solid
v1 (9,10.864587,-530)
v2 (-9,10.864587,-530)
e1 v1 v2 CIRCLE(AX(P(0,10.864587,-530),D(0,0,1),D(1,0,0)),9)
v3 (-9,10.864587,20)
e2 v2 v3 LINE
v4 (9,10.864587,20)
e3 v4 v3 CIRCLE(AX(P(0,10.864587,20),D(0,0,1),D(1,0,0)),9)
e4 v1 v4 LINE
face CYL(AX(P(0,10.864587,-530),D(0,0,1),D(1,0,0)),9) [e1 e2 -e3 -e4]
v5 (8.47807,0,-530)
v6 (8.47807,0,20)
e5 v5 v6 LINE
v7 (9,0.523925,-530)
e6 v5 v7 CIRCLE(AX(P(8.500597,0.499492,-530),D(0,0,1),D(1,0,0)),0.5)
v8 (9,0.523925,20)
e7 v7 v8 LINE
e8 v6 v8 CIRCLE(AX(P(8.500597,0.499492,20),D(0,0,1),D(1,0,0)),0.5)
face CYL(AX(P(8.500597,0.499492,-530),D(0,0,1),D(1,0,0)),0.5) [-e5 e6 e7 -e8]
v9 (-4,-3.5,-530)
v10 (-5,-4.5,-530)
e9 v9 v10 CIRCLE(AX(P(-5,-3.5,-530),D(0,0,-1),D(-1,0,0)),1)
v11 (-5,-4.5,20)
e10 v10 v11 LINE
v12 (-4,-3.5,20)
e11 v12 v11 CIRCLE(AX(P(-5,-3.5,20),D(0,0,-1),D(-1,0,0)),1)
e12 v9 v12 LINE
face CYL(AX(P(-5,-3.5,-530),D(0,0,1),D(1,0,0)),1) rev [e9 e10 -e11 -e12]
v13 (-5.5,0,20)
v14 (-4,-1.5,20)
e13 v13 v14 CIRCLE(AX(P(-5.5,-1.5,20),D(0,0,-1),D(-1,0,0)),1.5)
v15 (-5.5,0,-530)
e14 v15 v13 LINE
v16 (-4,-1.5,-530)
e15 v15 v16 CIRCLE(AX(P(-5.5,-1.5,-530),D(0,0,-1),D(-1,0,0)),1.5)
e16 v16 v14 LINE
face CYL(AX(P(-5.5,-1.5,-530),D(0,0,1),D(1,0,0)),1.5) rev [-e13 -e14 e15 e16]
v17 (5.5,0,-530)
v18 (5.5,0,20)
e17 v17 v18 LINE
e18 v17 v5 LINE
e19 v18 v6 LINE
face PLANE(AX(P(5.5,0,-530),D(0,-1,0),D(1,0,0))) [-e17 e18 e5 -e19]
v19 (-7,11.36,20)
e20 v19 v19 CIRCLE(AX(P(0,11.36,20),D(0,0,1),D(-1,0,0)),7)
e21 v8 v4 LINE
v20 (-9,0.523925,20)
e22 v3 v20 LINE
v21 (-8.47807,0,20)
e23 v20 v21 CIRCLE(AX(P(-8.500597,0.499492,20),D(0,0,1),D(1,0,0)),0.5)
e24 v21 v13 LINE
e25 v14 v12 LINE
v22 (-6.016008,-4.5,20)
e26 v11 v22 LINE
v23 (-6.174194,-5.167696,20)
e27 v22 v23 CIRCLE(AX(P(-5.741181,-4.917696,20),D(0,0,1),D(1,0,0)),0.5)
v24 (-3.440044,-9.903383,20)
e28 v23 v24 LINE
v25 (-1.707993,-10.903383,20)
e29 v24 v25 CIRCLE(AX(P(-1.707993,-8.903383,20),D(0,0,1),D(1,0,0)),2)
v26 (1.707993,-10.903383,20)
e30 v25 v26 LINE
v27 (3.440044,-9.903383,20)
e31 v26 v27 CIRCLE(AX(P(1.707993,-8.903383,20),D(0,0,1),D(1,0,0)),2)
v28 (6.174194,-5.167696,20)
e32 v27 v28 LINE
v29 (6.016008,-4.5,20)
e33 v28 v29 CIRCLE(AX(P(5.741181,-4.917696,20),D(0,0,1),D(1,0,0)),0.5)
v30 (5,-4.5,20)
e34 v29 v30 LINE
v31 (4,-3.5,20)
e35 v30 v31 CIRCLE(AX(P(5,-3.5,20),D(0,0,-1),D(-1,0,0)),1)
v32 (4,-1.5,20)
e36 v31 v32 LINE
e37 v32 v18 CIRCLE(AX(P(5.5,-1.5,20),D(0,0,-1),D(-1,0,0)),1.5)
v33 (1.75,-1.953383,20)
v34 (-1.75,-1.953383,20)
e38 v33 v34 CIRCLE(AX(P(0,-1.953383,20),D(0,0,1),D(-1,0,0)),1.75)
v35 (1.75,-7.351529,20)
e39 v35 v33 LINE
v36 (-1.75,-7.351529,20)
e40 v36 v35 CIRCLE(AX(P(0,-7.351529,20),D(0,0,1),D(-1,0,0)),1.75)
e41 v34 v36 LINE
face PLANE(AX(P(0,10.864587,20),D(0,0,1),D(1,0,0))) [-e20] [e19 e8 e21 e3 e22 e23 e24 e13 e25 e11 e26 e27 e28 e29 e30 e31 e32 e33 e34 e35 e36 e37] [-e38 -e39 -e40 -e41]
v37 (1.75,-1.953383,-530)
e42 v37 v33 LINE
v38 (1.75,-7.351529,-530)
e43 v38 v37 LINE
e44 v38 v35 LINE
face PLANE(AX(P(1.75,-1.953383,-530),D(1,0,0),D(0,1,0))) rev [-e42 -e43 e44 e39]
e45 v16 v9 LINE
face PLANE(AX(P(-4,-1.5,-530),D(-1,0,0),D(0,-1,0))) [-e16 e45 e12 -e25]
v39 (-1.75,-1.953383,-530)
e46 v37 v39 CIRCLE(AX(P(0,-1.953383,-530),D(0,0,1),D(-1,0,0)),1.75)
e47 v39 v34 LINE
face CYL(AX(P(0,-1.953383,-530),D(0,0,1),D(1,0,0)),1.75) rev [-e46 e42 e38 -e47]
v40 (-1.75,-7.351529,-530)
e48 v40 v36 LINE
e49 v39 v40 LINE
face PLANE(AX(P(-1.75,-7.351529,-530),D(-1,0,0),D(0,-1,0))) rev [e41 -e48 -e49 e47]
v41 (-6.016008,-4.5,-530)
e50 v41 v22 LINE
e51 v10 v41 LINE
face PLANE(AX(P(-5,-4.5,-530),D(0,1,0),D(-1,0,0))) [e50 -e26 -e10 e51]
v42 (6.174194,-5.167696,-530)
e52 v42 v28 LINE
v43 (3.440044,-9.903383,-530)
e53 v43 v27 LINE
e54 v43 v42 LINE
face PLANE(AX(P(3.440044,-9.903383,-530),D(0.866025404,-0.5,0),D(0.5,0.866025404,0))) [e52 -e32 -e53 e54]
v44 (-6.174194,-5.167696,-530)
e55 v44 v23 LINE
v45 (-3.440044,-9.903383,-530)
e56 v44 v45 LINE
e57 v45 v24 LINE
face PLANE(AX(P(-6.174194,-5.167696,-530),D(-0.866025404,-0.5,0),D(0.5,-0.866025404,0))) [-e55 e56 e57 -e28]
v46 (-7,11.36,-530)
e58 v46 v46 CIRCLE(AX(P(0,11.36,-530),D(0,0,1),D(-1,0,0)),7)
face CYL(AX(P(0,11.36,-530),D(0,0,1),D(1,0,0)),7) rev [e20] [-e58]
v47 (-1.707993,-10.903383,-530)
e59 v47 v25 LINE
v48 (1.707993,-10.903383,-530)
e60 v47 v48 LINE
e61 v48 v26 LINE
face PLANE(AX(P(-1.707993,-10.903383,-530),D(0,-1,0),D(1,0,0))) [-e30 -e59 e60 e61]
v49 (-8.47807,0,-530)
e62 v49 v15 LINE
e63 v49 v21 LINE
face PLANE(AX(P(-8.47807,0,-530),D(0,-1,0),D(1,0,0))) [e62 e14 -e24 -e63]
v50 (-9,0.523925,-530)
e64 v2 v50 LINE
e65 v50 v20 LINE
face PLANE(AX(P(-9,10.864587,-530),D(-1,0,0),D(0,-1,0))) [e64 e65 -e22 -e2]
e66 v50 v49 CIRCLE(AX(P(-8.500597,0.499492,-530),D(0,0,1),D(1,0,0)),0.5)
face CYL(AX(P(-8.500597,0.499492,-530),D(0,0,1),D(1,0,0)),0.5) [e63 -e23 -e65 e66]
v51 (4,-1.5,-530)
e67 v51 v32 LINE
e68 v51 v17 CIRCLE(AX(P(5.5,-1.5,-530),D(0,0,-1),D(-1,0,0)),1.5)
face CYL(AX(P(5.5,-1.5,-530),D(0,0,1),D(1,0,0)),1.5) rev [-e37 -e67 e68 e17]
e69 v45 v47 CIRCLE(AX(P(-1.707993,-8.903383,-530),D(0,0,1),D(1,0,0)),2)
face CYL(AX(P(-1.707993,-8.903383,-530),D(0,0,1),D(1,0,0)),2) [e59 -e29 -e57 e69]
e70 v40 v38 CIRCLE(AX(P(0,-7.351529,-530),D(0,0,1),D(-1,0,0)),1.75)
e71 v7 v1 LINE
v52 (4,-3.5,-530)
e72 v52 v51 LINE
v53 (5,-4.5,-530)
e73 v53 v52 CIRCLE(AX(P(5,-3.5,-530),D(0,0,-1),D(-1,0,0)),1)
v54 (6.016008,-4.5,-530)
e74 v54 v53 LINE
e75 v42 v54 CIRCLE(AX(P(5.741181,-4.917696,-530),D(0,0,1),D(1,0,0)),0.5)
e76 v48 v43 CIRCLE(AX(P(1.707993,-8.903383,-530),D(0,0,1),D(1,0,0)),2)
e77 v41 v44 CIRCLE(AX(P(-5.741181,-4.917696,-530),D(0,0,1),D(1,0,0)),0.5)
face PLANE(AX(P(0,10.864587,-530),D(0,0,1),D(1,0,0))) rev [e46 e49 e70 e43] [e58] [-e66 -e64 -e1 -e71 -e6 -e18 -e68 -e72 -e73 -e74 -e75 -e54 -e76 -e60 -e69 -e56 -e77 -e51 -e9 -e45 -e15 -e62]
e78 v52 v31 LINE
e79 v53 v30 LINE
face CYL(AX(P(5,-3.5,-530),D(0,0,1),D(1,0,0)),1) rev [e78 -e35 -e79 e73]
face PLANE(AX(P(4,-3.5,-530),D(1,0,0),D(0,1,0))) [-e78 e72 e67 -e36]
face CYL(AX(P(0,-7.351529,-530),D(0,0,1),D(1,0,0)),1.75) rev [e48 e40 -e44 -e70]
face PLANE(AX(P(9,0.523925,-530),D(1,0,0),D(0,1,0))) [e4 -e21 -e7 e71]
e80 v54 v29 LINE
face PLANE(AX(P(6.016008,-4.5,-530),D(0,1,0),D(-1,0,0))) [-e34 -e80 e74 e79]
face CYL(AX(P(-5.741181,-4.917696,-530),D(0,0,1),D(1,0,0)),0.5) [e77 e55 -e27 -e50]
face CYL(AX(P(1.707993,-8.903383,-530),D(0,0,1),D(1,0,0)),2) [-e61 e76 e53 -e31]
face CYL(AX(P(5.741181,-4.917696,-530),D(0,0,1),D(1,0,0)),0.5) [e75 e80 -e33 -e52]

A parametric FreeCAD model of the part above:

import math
import FreeCAD as App
import Part
import Sketcher
from FreeCAD import Vector
Q = App.Units.Quantity

doc = App.newDocument("Part")
params = doc.addObject("Spreadsheet::Sheet", "Params")
for row, (alias, value) in enumerate([
    ("sketch1_diameter", "14 mm"),
    ("sketch1_radius", "1 mm"),
    ("sketch1_radius2", "2 mm"),
    ("sketch1_radius3", "9 mm"),
    ("sketch1_radius4", "0.5 mm"),
    ("pad1_length", "550 mm"),
], start=1):
    params.set(f"A{row}", alias)
    params.set(f"B{row}", "=" + value)
    params.setAlias(f"B{row}", alias)

body = doc.addObject("PartDesign::Body", "Body")

sketch1 = body.newObject("Sketcher::SketchObject", "Sketch")
sketch1.AttachmentSupport = (doc.getObject("XY_Plane"), [""])
sketch1.MapMode = "FlatFace"
sketch1.AttachmentOffset = App.Placement(Vector(0, 0, 20), App.Rotation())
sketch1.addGeometry([
    Part.LineSegment(Vector(-9, 10.9, 0), Vector(-9, 0.5, 0)),
    Part.ArcOfCircle(Part.Circle(Vector(-8.5, 0.5, 0), Vector(0, 0, 1), 0.5), math.radians(177), math.radians(273)),
    Part.LineSegment(Vector(-8.5, 0, 0), Vector(-5.5, 0, 0)),
    Part.ArcOfCircle(Part.Circle(Vector(-5.5, -1.5, 0), Vector(0, 0, 1), 1.5), math.radians(0), math.radians(90)),
    Part.LineSegment(Vector(-4, -1.5, 0), Vector(-4, -3.5, 0)),
    Part.ArcOfCircle(Part.Circle(Vector(-5, -3.5, 0), Vector(0, 0, 1), 1), math.radians(-90), math.radians(0)),
    Part.LineSegment(Vector(-5, -4.5, 0), Vector(-6, -4.5, 0)),
    Part.ArcOfCircle(Part.Circle(Vector(-5.7, -4.9, 0), Vector(0, 0, 1), 0.5), math.radians(123), math.radians(210)),
    Part.LineSegment(Vector(-6.2, -5.2, 0), Vector(-3.4, -9.9, 0)),
    Part.ArcOfCircle(Part.Circle(Vector(-1.7, -8.9, 0), Vector(0, 0, 1), 2), math.radians(-150), math.radians(-90)),
    Part.LineSegment(Vector(-1.7, -10.9, 0), Vector(1.7, -10.9, 0)),
    Part.ArcOfCircle(Part.Circle(Vector(1.7, -8.9, 0), Vector(0, 0, 1), 2), math.radians(-90), math.radians(-30)),
    Part.LineSegment(Vector(3.4, -9.9, 0), Vector(6.2, -5.2, 0)),
    Part.ArcOfCircle(Part.Circle(Vector(5.7, -4.9, 0), Vector(0, 0, 1), 0.5), math.radians(-30), math.radians(57)),
    Part.LineSegment(Vector(6, -4.5, 0), Vector(5, -4.5, 0)),
    Part.ArcOfCircle(Part.Circle(Vector(5, -3.5, 0), Vector(0, 0, 1), 1), math.radians(-180), math.radians(-90)),
    Part.LineSegment(Vector(4, -3.5, 0), Vector(4, -1.5, 0)),
    Part.ArcOfCircle(Part.Circle(Vector(5.5, -1.5, 0), Vector(0, 0, 1), 1.5), math.radians(90), math.radians(180)),
    Part.LineSegment(Vector(5.5, 0, 0), Vector(8.5, 0, 0)),
    Part.ArcOfCircle(Part.Circle(Vector(8.5, 0.5, 0), Vector(0, 0, 1), 0.5), math.radians(-93), math.radians(3)),
    Part.LineSegment(Vector(9, 0.5, 0), Vector(9, 10.9, 0)),
    Part.ArcOfCircle(Part.Circle(Vector(0, 10.9, 0), Vector(0, 0, 1), 9), math.radians(0), math.radians(180)),
    Part.ArcOfCircle(Part.Circle(Vector(0, -2, 0), Vector(0, 0, 1), 1.8), math.radians(0), math.radians(180)),
    Part.LineSegment(Vector(1.8, -2, 0), Vector(1.8, -7.4, 0)),
    Part.ArcOfCircle(Part.Circle(Vector(0, -7.4, 0), Vector(0, 0, 1), 1.8), math.radians(180), math.radians(360)),
    Part.LineSegment(Vector(-1.8, -7.4, 0), Vector(-1.8, -2, 0)),
    Part.Circle(Vector(0, 11.4, 0), Vector(0, 0, 1), 7),
], False)
sketch1.addConstraint([
    Sketcher.Constraint("Coincident", 0, 2, 1, 1),
    Sketcher.Constraint("Coincident", 1, 2, 2, 1),
    Sketcher.Constraint("Tangent", 2, 2, 3, 2),
    Sketcher.Constraint("Tangent", 3, 1, 4, 1),
    Sketcher.Constraint("Tangent", 4, 2, 5, 2),
    Sketcher.Constraint("Tangent", 5, 1, 6, 1),
    Sketcher.Constraint("Coincident", 6, 2, 7, 1),
    Sketcher.Constraint("Tangent", 7, 2, 8, 1),
    Sketcher.Constraint("Tangent", 8, 2, 9, 1),
    Sketcher.Constraint("Tangent", 9, 2, 10, 1),
    Sketcher.Constraint("Tangent", 10, 2, 11, 1),
    Sketcher.Constraint("Tangent", 11, 2, 12, 1),
    Sketcher.Constraint("Tangent", 12, 2, 13, 1),
    Sketcher.Constraint("Coincident", 13, 2, 14, 1),
    Sketcher.Constraint("Tangent", 14, 2, 15, 2),
    Sketcher.Constraint("Tangent", 15, 1, 16, 1),
    Sketcher.Constraint("Tangent", 16, 2, 17, 2),
    Sketcher.Constraint("Tangent", 17, 1, 18, 1),
    Sketcher.Constraint("Coincident", 18, 2, 19, 1),
    Sketcher.Constraint("Coincident", 19, 2, 20, 1),
    Sketcher.Constraint("Tangent", 20, 2, 21, 1),
    Sketcher.Constraint("Tangent", 21, 2, 0, 1),
    Sketcher.Constraint("Tangent", 22, 1, 23, 1),
    Sketcher.Constraint("Tangent", 23, 2, 24, 2),
    Sketcher.Constraint("Tangent", 24, 1, 25, 1),
    Sketcher.Constraint("Tangent", 25, 2, 22, 2),
    Sketcher.Constraint("Vertical", 0),
    Sketcher.Constraint("Horizontal", 2),
    Sketcher.Constraint("Vertical", 4),
    Sketcher.Constraint("Horizontal", 6),
    Sketcher.Constraint("Horizontal", 10),
    Sketcher.Constraint("Horizontal", 14),
    Sketcher.Constraint("Vertical", 16),
    Sketcher.Constraint("Horizontal", 18),
    Sketcher.Constraint("Vertical", 20),
    Sketcher.Constraint("Vertical", 23),
    Sketcher.Constraint("Vertical", 25),
    Sketcher.Constraint("Equal", 1, 7),
    Sketcher.Constraint("Equal", 9, 11),
    Sketcher.Constraint("Equal", 7, 13),
    Sketcher.Constraint("Equal", 5, 15),
    Sketcher.Constraint("Equal", 3, 17),
    Sketcher.Constraint("Equal", 13, 19),
    Sketcher.Constraint("Symmetric", 2, 2, 17, 1, -1, 1),
    Sketcher.Constraint("Symmetric", 7, 3, 13, 3, -2),
    Sketcher.Constraint("Symmetric", 1, 3, 19, 3, -2),
    Sketcher.Constraint("PointOnObject", 21, 3, -2),
    Sketcher.Constraint("PointOnObject", 22, 3, -2),
    Sketcher.Constraint("PointOnObject", 26, 3, -2),
    Sketcher.Constraint("PointOnObject", 1, 2, -1),
    Sketcher.Constraint("Horizontal", 5, 3, 15, 3),
    Sketcher.Constraint("Horizontal", 8, 2, 11, 2),
    Sketcher.Constraint("Diameter", 26, 14.0),
    Sketcher.Constraint("Radius", 5, 1.0),
    Sketcher.Constraint("Radius", 9, 2.0),
    Sketcher.Constraint("Radius", 21, 9.0),
    Sketcher.Constraint("Radius", 1, 0.5),
    Sketcher.Constraint("Radius", 3, 1.5),
    Sketcher.Constraint("DistanceY", 4, 2, 4, 1, 2.0),
    Sketcher.Constraint("Angle", 8, Q("-60 deg")),
    Sketcher.Constraint("Radius", 22, 1.75),
    Sketcher.Constraint("DistanceX", 5, 3, -1, 1, 5.0),
    Sketcher.Constraint("DistanceY", -1, 1, 26, 3, 11.36),
    Sketcher.Constraint("Distance", 8, 5.4683),
    Sketcher.Constraint("DistanceX", 2, 1, 2, 2, 2.97807),
    Sketcher.Constraint("DistanceX", 6, 2, 6, 1, 1.016008),
    Sketcher.Constraint("DistanceX", 10, 1, 10, 2, 3.415986),
    Sketcher.Constraint("DistanceY", 0, 2, 0, 1, 10.340662),
    Sketcher.Constraint("DistanceY", 23, 2, 23, 1, 5.398146),
    Sketcher.Constraint("DistanceY", 24, 3, -1, 1, 7.351529),
    Sketcher.Constraint("DistanceX", 1, 3, 11, 3, 10.20859),
])
sketch1.setExpression("Constraints[52]", "Params.sketch1_diameter")
sketch1.setExpression("Constraints[53]", "Params.sketch1_radius")
sketch1.setExpression("Constraints[54]", "Params.sketch1_radius2")
sketch1.setExpression("Constraints[55]", "Params.sketch1_radius3")
sketch1.setExpression("Constraints[56]", "Params.sketch1_radius4")
pad1 = body.newObject("PartDesign::Pad", "Pad")
pad1.Profile = sketch1
pad1.setExpression("Length", "Params.pad1_length")
pad1.Reversed = True

doc.recompute()
